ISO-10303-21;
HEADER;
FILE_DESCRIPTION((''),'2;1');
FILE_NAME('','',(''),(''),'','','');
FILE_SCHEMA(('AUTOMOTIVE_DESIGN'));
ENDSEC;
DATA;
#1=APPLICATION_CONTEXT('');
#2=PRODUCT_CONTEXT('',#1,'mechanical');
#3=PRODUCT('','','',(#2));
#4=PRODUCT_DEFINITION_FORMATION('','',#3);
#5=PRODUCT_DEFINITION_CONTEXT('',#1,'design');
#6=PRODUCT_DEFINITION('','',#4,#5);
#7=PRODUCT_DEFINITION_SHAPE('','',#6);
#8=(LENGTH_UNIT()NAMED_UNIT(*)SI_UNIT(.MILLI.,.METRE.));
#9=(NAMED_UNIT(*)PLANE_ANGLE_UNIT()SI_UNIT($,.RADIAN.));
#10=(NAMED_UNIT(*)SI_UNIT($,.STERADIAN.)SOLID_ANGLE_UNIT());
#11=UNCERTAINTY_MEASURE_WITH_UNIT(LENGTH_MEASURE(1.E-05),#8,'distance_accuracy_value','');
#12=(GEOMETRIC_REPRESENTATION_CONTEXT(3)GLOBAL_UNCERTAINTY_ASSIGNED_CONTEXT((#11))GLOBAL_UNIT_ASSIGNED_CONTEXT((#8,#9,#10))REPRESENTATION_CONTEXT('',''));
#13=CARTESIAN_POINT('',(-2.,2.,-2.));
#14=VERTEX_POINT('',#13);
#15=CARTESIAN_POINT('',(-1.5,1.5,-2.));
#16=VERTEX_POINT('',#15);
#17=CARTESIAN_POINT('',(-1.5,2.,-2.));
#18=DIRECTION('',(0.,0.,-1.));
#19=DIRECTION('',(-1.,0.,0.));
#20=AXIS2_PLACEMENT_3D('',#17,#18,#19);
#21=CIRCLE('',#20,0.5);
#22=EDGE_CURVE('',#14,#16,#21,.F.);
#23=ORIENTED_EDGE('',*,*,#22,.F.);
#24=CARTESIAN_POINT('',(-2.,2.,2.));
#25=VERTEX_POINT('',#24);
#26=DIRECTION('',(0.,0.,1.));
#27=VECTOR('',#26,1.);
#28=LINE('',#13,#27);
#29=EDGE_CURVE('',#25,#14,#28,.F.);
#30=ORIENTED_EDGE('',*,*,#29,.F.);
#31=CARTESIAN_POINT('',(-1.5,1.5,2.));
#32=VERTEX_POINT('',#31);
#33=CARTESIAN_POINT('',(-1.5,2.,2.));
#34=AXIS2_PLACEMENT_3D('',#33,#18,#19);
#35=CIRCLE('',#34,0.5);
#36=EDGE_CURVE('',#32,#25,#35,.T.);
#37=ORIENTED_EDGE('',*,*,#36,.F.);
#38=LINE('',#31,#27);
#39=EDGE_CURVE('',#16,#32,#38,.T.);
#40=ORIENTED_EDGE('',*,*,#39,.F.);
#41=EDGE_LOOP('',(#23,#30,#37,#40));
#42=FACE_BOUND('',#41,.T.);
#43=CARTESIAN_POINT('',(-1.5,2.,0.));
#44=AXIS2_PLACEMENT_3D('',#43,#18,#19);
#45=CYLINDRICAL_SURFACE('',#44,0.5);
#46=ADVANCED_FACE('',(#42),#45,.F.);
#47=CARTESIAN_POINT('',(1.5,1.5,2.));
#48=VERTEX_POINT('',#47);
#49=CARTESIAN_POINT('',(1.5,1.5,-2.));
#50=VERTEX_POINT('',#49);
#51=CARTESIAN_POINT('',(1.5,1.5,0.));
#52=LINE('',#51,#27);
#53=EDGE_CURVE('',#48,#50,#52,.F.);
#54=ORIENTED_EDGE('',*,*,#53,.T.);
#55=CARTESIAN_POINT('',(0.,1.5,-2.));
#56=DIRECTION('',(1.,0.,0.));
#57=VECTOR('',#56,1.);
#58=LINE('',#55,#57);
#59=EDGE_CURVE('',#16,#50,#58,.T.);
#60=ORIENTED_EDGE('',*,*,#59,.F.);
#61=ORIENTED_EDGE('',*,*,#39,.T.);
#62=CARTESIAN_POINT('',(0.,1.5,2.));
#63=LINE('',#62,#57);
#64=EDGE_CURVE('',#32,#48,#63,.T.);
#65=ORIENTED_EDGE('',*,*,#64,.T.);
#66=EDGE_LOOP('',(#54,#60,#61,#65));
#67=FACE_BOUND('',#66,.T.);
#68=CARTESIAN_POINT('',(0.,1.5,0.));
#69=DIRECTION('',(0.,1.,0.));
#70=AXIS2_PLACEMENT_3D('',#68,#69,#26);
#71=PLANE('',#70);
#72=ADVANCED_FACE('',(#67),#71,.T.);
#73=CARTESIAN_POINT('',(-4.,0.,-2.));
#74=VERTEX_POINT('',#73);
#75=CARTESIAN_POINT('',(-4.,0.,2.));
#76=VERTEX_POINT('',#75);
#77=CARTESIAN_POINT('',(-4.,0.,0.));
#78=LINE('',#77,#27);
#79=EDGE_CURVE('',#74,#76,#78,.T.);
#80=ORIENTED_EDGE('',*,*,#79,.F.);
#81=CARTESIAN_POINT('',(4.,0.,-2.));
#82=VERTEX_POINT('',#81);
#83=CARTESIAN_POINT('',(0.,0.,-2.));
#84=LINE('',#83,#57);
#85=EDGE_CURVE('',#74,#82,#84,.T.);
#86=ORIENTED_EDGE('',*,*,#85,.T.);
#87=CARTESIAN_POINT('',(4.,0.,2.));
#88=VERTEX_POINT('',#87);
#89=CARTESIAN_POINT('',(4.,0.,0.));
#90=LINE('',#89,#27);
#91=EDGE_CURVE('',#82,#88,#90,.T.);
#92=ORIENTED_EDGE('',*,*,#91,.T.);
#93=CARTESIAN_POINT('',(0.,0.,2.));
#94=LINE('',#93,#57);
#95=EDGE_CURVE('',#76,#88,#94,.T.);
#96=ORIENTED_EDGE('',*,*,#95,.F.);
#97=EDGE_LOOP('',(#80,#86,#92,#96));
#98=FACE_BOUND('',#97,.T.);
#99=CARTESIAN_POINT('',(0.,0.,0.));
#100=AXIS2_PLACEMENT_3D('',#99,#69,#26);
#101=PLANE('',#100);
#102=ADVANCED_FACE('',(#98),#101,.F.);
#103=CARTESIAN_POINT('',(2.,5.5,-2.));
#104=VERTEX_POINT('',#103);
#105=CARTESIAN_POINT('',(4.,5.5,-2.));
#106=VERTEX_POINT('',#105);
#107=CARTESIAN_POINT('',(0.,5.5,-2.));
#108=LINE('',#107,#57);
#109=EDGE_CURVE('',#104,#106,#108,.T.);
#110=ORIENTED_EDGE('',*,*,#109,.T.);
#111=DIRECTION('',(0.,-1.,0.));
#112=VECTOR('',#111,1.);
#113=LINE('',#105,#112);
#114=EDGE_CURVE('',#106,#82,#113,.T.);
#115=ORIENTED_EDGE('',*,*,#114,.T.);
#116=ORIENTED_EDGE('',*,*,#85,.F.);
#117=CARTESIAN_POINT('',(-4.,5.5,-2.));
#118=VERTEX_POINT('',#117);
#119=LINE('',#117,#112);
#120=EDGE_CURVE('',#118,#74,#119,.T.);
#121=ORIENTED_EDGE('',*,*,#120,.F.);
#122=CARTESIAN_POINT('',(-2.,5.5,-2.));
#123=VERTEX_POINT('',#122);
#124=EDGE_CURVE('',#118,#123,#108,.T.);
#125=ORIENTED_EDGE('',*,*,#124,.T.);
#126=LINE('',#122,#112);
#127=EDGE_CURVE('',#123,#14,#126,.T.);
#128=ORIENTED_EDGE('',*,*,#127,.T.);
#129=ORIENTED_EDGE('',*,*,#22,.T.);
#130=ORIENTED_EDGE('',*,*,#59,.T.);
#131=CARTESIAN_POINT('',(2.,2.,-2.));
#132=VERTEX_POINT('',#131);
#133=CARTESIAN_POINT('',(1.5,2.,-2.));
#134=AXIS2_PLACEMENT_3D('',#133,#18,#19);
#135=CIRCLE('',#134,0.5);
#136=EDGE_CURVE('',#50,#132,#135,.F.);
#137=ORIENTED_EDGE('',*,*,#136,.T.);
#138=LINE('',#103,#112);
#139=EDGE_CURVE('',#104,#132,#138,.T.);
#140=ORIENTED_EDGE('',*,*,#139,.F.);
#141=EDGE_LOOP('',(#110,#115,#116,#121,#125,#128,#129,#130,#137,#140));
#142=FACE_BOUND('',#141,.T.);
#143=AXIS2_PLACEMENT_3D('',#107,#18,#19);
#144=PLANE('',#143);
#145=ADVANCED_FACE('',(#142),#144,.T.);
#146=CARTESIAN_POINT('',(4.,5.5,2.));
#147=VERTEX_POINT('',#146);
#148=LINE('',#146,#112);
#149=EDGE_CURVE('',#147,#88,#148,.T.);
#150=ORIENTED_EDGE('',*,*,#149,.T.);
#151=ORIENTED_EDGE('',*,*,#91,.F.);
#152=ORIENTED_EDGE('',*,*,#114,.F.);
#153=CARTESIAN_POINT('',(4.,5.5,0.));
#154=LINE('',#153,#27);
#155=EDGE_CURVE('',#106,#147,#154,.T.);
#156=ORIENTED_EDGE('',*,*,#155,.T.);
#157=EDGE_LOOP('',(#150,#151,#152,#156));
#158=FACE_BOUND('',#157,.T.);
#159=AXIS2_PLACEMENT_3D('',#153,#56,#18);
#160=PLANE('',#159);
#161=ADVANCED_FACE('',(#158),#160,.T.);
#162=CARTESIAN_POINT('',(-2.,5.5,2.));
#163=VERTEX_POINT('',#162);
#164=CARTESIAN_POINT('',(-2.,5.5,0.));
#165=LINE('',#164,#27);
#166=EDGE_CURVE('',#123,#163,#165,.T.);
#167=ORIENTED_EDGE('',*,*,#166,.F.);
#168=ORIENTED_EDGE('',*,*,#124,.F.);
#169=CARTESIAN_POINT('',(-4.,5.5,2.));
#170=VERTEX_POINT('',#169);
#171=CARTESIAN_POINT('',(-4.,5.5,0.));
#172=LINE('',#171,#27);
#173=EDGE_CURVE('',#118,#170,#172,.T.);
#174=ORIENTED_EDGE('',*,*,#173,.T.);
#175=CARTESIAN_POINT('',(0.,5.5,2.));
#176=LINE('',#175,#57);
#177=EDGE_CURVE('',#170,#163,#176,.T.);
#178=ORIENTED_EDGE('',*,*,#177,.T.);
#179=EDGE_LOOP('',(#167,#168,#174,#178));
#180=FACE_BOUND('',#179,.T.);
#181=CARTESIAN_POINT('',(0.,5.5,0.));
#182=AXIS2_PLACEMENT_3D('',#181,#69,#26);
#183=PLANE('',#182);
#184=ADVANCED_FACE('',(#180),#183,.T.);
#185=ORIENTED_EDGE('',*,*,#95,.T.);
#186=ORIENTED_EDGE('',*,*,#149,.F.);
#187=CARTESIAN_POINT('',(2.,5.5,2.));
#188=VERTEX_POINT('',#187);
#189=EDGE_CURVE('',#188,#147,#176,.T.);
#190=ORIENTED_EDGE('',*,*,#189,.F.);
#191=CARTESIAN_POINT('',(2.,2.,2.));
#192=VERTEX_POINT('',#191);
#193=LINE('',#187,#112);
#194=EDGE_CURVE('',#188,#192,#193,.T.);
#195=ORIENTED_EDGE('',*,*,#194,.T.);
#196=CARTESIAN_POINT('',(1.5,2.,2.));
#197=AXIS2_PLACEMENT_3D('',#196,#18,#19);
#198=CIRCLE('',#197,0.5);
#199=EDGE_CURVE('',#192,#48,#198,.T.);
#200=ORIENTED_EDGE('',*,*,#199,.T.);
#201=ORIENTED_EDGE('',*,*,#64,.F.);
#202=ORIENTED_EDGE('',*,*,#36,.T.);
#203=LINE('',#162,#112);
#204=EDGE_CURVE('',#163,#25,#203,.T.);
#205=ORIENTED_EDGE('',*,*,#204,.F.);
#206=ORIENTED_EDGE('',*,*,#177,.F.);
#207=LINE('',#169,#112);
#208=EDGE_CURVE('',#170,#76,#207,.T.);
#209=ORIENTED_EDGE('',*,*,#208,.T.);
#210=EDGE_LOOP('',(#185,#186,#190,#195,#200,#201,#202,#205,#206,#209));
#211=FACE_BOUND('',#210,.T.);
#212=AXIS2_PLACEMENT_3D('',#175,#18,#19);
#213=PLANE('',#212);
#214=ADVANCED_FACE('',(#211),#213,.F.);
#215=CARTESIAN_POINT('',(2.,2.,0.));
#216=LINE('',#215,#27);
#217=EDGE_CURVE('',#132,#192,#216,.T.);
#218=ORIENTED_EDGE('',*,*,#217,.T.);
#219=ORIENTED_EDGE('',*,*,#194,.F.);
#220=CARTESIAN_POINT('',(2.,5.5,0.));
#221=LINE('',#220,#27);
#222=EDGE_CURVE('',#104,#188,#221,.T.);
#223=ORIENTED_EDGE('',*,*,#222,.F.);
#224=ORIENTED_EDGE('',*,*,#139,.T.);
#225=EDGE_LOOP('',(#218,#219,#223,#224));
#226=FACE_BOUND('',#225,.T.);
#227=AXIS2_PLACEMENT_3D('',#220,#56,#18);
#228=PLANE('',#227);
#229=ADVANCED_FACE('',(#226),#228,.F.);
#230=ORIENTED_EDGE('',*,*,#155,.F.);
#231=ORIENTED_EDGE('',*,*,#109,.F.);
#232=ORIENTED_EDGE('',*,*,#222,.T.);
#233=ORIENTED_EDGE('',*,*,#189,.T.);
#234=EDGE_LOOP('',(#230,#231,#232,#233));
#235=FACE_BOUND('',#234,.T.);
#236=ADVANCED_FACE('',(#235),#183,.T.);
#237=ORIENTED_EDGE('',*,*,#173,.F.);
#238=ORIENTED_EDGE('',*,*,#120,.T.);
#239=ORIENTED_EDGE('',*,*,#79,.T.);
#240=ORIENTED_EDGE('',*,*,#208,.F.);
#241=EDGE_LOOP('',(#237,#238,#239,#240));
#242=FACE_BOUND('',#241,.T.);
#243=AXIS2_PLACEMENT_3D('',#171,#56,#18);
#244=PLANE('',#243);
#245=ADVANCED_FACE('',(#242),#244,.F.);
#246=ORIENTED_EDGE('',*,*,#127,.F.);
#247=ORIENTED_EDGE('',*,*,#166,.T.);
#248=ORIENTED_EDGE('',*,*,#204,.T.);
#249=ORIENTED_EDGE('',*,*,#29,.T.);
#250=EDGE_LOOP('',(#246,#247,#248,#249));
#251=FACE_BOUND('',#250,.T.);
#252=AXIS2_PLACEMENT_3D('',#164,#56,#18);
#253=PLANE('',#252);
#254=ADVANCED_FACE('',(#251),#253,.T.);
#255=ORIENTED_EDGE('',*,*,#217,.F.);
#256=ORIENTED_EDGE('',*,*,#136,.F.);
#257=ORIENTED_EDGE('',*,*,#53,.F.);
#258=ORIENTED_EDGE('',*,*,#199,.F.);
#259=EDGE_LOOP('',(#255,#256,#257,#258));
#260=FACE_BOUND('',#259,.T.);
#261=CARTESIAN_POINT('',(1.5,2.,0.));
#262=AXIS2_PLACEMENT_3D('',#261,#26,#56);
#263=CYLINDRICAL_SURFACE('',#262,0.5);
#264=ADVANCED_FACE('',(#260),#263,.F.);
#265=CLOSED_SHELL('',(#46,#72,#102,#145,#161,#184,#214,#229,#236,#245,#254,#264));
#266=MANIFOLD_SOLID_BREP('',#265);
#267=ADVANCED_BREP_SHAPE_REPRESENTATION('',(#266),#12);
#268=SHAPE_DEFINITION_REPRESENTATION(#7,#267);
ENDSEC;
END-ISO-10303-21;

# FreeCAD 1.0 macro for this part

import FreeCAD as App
import Part
import Sketcher


def edges_at(feature, points):
    """Names of the edges that pass closest to the given points."""
    edges = feature.Shape.Edges
    near = lambda p: min(range(len(edges)), key=lambda i: edges[i].distToShape(Part.Vertex(*p))[0])
    return sorted({f"Edge{near(p) + 1}" for p in points})

doc = App.newDocument("Part")
body = doc.addObject("PartDesign::Body", "Body")

sketch1 = body.newObject("Sketcher::SketchObject", "Sketch")
sketch1.AttachmentSupport = (doc.getObject("XZ_Plane"), [""])
sketch1.MapMode = "FlatFace"
sketch1.addGeometry([
    Part.LineSegment(App.Vector(-4, -2, 0), App.Vector(-4, 2, 0)),
    Part.LineSegment(App.Vector(-4, 2, 0), App.Vector(-2, 2, 0)),
    Part.LineSegment(App.Vector(-2, 2, 0), App.Vector(-2, -2, 0)),
    Part.LineSegment(App.Vector(-2, -2, 0), App.Vector(-4, -2, 0)),
], False)
sketch1.addConstraint([
    Sketcher.Constraint("Coincident", 0, 2, 1, 1),
    Sketcher.Constraint("Coincident", 1, 2, 2, 1),
    Sketcher.Constraint("Coincident", 2, 2, 3, 1),
    Sketcher.Constraint("Coincident", 3, 2, 0, 1),
    Sketcher.Constraint("Vertical", 0),
    Sketcher.Constraint("Horizontal", 1),
    Sketcher.Constraint("Vertical", 2),
    Sketcher.Constraint("Horizontal", 3),
    Sketcher.Constraint("DistanceX", 1, 1, 1, 2, 2.0),
    Sketcher.Constraint("DistanceY", 0, 1, 0, 2, 4.0),
    Sketcher.Constraint("DistanceX", 0, 2, -1, 1, 4.0),
    Sketcher.Constraint("DistanceY", -1, 1, 0, 2, 2.0),
])
pad1 = body.newObject("PartDesign::Pad", "Pad")
pad1.Profile = sketch1
pad1.Length = 5.5
pad1.Reversed = True
body2 = doc.addObject("PartDesign::Body", "Body001")

sketch2 = body2.newObject("Sketcher::SketchObject", "Sketch001")
sketch2.AttachmentSupport = (doc.getObject("XZ_Plane001"), [""])
sketch2.MapMode = "FlatFace"
sketch2.addGeometry([
    Part.LineSegment(App.Vector(2, -2, 0), App.Vector(2, 2, 0)),
    Part.LineSegment(App.Vector(2, 2, 0), App.Vector(4, 2, 0)),
    Part.LineSegment(App.Vector(4, 2, 0), App.Vector(4, -2, 0)),
    Part.LineSegment(App.Vector(4, -2, 0), App.Vector(2, -2, 0)),
], False)
sketch2.addConstraint([
    Sketcher.Constraint("Coincident", 0, 2, 1, 1),
    Sketcher.Constraint("Coincident", 1, 2, 2, 1),
    Sketcher.Constraint("Coincident", 2, 2, 3, 1),
    Sketcher.Constraint("Coincident", 3, 2, 0, 1),
    Sketcher.Constraint("Vertical", 0),
    Sketcher.Constraint("Horizontal", 1),
    Sketcher.Constraint("Vertical", 2),
    Sketcher.Constraint("Horizontal", 3),
    Sketcher.Constraint("DistanceX", 1, 1, 1, 2, 2.0),
    Sketcher.Constraint("DistanceY", 0, 1, 0, 2, 4.0),
    Sketcher.Constraint("DistanceX", -1, 1, 0, 2, 2.0),
    Sketcher.Constraint("DistanceY", -1, 1, 0, 2, 2.0),
])
pad2 = body2.newObject("PartDesign::Pad", "Pad001")
pad2.Profile = sketch2
pad2.Length = 5.5
pad2.Reversed = True
body.AllowCompound = True
doc.recompute()

boolean = body.newObject("PartDesign::Boolean", "Boolean")
boolean.Type = "Fuse"
boolean.addObjects([body2])

sketch3 = body.newObject("Sketcher::SketchObject", "Sketch002")
sketch3.AttachmentSupport = (doc.getObject("XZ_Plane"), [""])
sketch3.MapMode = "FlatFace"
sketch3.addGeometry([
    Part.LineSegment(App.Vector(-2, -2, 0), App.Vector(-2, 2, 0)),
    Part.LineSegment(App.Vector(-2, 2, 0), App.Vector(2, 2, 0)),
    Part.LineSegment(App.Vector(2, 2, 0), App.Vector(2, -2, 0)),
    Part.LineSegment(App.Vector(2, -2, 0), App.Vector(-2, -2, 0)),
], False)
sketch3.addConstraint([
    Sketcher.Constraint("Coincident", 0, 2, 1, 1),
    Sketcher.Constraint("Coincident", 1, 2, 2, 1),
    Sketcher.Constraint("Coincident", 2, 2, 3, 1),
    Sketcher.Constraint("Coincident", 3, 2, 0, 1),
    Sketcher.Constraint("Vertical", 0),
    Sketcher.Constraint("Horizontal", 1),
    Sketcher.Constraint("Vertical", 2),
    Sketcher.Constraint("Horizontal", 3),
    Sketcher.Constraint("Symmetric", 0, 2, 2, 2, -1, 1),
    Sketcher.Constraint("Equal", 3, 0),
    Sketcher.Constraint("DistanceX", 1, 1, 1, 2, 4.0),
])
pad3 = body.newObject("PartDesign::Pad", "Pad002")
pad3.Profile = sketch3
pad3.Length = 1.5
pad3.Reversed = True
doc.recompute()

fillet = body.newObject("PartDesign::Fillet", "Fillet")
fillet.Base = (pad3, edges_at(pad3, [(2, 1.5, 0), (-2, 1.5, 0)]))
fillet.Radius = 0.5

doc.recompute()
